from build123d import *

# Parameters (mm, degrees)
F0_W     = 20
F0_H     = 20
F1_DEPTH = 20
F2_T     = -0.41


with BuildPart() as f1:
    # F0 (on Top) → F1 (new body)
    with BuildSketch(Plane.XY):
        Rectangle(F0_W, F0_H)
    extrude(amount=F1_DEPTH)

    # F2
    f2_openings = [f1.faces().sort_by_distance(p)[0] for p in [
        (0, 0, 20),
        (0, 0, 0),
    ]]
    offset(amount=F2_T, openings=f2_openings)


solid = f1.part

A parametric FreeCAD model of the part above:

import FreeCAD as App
import Part
import Sketcher

V = App.Vector
Q = App.Units.Quantity


def faces_at(feature, points):
    """Names of the faces that lie closest to the given points."""
    faces = feature.Shape.Faces
    near = lambda p: min(range(len(faces)), key=lambda i: faces[i].distToShape(Part.Vertex(*p))[0])
    return sorted({f"Face{near(p) + 1}" for p in points})

doc = App.newDocument("Part")
params = doc.addObject("Spreadsheet::Sheet", "Params")
for row, (alias, value) in enumerate([
    ("sketch1_width", "20 mm"),
    ("pad1_length", "20 mm"),
    ("thickness_wall", "0.41 mm"),
], start=1):
    params.set(f"A{row}", alias)
    params.set(f"B{row}", "=" + value)
    params.setAlias(f"B{row}", alias)

body = doc.addObject("PartDesign::Body", "Body")

# Sketch on XY plane
sketch1 = body.newObject("Sketcher::SketchObject", "Sketch")
sketch1.AttachmentSupport = (doc.getObject("XY_Plane"), [""])
sketch1.MapMode = "FlatFace"
sketch1.addGeometry([
    Part.LineSegment(V(-10, 10, 0), V(-10, -10, 0)),
    Part.LineSegment(V(-10, -10, 0), V(10, -10, 0)),
    Part.LineSegment(V(10, -10, 0), V(10, 10, 0)),
    Part.LineSegment(V(10, 10, 0), V(-10, 10, 0)),
], False)
sketch1.addConstraint([
    Sketcher.Constraint("Coincident", 0, 2, 1, 1),
    Sketcher.Constraint("Coincident", 1, 2, 2, 1),
    Sketcher.Constraint("Coincident", 2, 2, 3, 1),
    Sketcher.Constraint("Coincident", 3, 2, 0, 1),
    Sketcher.Constraint("Vertical", 0),
    Sketcher.Constraint("Horizontal", 1),
    Sketcher.Constraint("Vertical", 2),
    Sketcher.Constraint("Horizontal", 3),
    Sketcher.Constraint("Symmetric", 0, 2, 2, 2, -1, 1),
    Sketcher.Constraint("Equal", 3, 0),
    Sketcher.Constraint("DistanceX", 1, 1, 1, 2, Q("20 mm")),
])
sketch1.setExpression("Constraints[10]", "Params.sketch1_width")
pad1 = body.newObject("PartDesign::Pad", "Pad")
pad1.Profile = sketch1
pad1.setExpression("Length", "Params.pad1_length")
doc.recompute()

thickness = body.newObject("PartDesign::Thickness", "Thickness")
thickness.Base = (pad1, faces_at(pad1, [(0, 0, 20), (0, 0, 0)]))
thickness.setExpression("Value", "Params.thickness_wall")
thickness.Reversed = True
thickness.Join = "Arc"

doc.recompute()
